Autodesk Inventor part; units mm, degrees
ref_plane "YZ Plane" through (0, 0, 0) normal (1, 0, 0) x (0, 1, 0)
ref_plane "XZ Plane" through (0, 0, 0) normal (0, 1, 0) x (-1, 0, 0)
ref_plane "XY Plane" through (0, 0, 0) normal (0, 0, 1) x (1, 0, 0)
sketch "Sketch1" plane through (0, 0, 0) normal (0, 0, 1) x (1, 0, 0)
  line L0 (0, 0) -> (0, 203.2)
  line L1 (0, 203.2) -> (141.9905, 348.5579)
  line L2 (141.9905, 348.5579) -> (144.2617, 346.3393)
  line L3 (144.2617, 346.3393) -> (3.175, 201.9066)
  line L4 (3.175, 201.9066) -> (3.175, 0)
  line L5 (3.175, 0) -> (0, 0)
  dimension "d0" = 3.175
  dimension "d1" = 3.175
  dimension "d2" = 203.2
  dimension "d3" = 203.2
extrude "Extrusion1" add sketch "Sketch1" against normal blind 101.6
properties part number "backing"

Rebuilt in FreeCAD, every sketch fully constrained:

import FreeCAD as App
import Part
import Sketcher
from FreeCAD import Vector
Q = App.Units.Quantity


def add_polygon(sketch, points):
    """Adds a closed chain of lines whose ends are joined by coincident constraints."""
    first, n = sketch.GeometryCount, len(points)
    for a, b in zip(points, points[1:] + points[:1]):
        sketch.addGeometry(Part.LineSegment(App.Vector(*a, 0), App.Vector(*b, 0)), False)
    for i in range(n):
        sketch.addConstraint(Sketcher.Constraint("Coincident", first + i, 2, first + (i + 1) % n, 1))

doc = App.newDocument("Part")
params = doc.addObject("Spreadsheet::Sheet", "Params")
for row, (alias, value) in enumerate([
    ("sketch1_height", "8 in"),
    ("sketch1_length", "8 in"),
    ("sketch1_width", "0.125 in"),
    ("sketch1_length2", "0.125 in"),
    ("pad1_length", "4 in"),
], start=1):
    params.set(f"A{row}", alias)
    params.set(f"B{row}", "=" + value)
    params.setAlias(f"B{row}", alias)

body = doc.addObject("PartDesign::Body", "Body")

# Sketch on XY plane
sketch1 = doc.addObject("Sketcher::SketchObject", "Sketch")
body.addObject(sketch1)
sketch1.AttachmentSupport = (doc.XY_Plane, [""])
sketch1.MapMode = "FlatFace"
add_polygon(sketch1, [(0, 203.2), (0, 0), (3.2, 0), (3.2, 201.9), (144.3, 346.3), (142, 348.6)])  # lines 0-5
sketch1.addConstraint(Sketcher.Constraint("Vertical", 0))
sketch1.addConstraint(Sketcher.Constraint("Horizontal", 1))
sketch1.addConstraint(Sketcher.Constraint("Vertical", 2))
sketch1.addConstraint(Sketcher.Constraint("Coincident", 0, 2, -1, 1))
sketch1.addConstraint(Sketcher.Constraint("Perpendicular", 3, 4))
sketch1.addConstraint(Sketcher.Constraint("Perpendicular", 4, 5))
sketch1.addConstraint(Sketcher.Constraint("DistanceY", 0, 2, 0, 1, Q("8 in")))
sketch1.addConstraint(Sketcher.Constraint("Distance", 5, Q("8 in")))
sketch1.addConstraint(Sketcher.Constraint("DistanceX", 1, 1, 1, 2, Q("0.125 in")))
sketch1.addConstraint(Sketcher.Constraint("Distance", 4, Q("0.125 in")))
sketch1.addConstraint(Sketcher.Constraint("DistanceY", 2, 1, 2, 2, Q("201.9066 mm")))
sketch1.setExpression("Constraints[12]", "Params.sketch1_height")
sketch1.setExpression("Constraints[13]", "Params.sketch1_length")
sketch1.setExpression("Constraints[14]", "Params.sketch1_width")
sketch1.setExpression("Constraints[15]", "Params.sketch1_length2")
pad1 = doc.addObject("PartDesign::Pad", "Pad")
body.addObject(pad1)
pad1.Profile = sketch1
pad1.setExpression("Length", "Params.pad1_length")
pad1.Reversed = True

doc.recompute()
